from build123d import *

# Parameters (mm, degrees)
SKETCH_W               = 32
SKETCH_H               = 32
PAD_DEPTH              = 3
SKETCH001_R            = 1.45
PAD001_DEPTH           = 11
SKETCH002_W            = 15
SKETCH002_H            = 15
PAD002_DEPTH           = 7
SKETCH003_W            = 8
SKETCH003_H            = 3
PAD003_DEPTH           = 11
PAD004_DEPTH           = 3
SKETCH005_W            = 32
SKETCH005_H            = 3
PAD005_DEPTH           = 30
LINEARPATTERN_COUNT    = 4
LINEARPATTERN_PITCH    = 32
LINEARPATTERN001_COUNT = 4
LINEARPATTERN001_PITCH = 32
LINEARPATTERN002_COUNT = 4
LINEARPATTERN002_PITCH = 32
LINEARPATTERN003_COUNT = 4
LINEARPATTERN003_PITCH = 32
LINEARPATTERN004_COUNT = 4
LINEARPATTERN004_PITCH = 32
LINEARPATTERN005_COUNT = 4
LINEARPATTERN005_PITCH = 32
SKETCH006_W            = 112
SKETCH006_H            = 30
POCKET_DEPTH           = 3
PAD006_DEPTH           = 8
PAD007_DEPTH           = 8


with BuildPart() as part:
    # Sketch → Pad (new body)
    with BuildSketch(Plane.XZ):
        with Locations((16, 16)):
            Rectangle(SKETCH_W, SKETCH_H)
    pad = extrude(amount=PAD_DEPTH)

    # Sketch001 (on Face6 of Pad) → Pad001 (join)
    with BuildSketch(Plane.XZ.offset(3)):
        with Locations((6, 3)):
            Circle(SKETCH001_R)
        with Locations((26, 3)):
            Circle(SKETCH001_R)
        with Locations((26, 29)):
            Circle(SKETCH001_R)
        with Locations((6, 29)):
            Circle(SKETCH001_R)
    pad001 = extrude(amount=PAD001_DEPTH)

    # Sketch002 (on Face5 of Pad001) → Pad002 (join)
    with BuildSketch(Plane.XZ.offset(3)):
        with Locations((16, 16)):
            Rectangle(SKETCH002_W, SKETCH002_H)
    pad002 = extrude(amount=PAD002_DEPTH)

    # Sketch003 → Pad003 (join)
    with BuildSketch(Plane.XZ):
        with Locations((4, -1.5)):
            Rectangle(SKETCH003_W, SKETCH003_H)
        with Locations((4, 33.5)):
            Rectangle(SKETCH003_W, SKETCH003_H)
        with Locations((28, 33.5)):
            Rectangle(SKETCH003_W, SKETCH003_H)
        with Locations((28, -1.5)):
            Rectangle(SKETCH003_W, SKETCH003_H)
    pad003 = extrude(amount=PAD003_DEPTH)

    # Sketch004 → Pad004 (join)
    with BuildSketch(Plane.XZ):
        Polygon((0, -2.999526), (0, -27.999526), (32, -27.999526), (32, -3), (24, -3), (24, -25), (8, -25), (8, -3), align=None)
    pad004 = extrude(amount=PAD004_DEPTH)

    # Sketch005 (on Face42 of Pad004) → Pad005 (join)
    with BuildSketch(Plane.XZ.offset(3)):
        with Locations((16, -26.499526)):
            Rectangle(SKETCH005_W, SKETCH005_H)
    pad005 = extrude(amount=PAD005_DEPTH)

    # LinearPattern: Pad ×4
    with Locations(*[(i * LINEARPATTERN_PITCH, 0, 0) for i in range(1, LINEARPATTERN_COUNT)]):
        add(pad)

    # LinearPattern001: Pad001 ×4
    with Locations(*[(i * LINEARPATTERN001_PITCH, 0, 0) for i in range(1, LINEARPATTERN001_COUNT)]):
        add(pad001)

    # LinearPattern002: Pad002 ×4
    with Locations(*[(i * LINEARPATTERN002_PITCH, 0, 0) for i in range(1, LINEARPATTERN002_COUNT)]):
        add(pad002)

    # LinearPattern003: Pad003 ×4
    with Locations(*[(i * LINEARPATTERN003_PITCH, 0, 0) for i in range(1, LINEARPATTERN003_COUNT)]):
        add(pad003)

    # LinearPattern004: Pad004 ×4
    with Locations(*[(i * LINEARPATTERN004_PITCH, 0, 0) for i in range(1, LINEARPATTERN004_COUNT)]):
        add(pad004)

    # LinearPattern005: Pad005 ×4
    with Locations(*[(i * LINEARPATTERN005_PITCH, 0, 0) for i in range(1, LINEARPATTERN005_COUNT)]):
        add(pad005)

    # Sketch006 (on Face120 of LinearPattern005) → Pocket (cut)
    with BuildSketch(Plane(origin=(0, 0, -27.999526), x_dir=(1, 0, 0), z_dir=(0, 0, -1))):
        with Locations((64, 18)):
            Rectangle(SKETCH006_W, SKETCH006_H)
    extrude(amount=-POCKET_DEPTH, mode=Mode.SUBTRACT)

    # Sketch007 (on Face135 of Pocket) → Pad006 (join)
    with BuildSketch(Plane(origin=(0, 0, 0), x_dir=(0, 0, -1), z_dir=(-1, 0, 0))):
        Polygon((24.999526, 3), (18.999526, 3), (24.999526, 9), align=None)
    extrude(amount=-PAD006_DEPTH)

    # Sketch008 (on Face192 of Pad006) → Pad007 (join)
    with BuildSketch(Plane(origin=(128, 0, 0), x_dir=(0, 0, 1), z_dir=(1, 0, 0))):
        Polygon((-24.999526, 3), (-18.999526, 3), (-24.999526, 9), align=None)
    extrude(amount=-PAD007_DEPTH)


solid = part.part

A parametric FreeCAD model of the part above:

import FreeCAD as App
import Part
import Sketcher
from FreeCAD import Vector

doc = App.newDocument("Part")
params = doc.addObject("Spreadsheet::Sheet", "Params")
for row, (alias, value) in enumerate([
    ("sketch1_width", "32 mm"),
    ("pad1_length", "3 mm"),
    ("sketch2_diameter", "2.9 mm"),
    ("pad2_length", "11 mm"),
    ("sketch3_width", "15 mm"),
    ("pad3_length", "7 mm"),
    ("sketch4_width", "8 mm"),
    ("sketch4_height", "3 mm"),
    ("pad4_length", "11 mm"),
    ("sketch5_width", "32 mm"),
    ("sketch5_width2", "8 mm"),
    ("sketch5_width3", "16 mm"),
    ("sketch5_height", "25 mm"),
    ("sketch5_height2", "22 mm"),
    ("pad5_length", "3 mm"),
    ("sketch6_width", "32 mm"),
    ("sketch6_height", "3 mm"),
    ("pad6_length", "30 mm"),
    ("linearpattern_pitch", "32 mm"),
    ("linearpattern2_pitch", "32 mm"),
    ("linearpattern3_pitch", "32 mm"),
    ("linearpattern4_pitch", "32 mm"),
    ("linearpattern5_pitch", "32 mm"),
    ("linearpattern6_pitch", "32 mm"),
    ("sketch7_width", "112 mm"),
    ("sketch7_height", "30 mm"),
    ("pocket1_length", "3 mm"),
    ("sketch8_width", "6 mm"),
    ("pad7_length", "8 mm"),
    ("sketch9_width", "6 mm"),
    ("pad8_length", "8 mm"),
], start=1):
    params.set(f"A{row}", alias)
    params.set(f"B{row}", "=" + value)
    params.setAlias(f"B{row}", alias)

body = doc.addObject("PartDesign::Body", "Body")

sketch1 = doc.addObject("Sketcher::SketchObject", "Sketch")
body.addObject(sketch1)
sketch1.AttachmentSupport = (doc.XZ_Plane, [""])
sketch1.MapMode = "FlatFace"
sketch1.addGeometry(Part.LineSegment(Vector(0, 32, 0), Vector(0, 0, 0)), False)
sketch1.addGeometry(Part.LineSegment(Vector(0, 0, 0), Vector(32, 0, 0)), False)
sketch1.addGeometry(Part.LineSegment(Vector(32, 0, 0), Vector(32, 32, 0)), False)
sketch1.addGeometry(Part.LineSegment(Vector(32, 32, 0), Vector(0, 32, 0)), False)
sketch1.addConstraint(Sketcher.Constraint("Coincident", 0, 2, 1, 1))
sketch1.addConstraint(Sketcher.Constraint("Coincident", 1, 2, 2, 1))
sketch1.addConstraint(Sketcher.Constraint("Coincident", 2, 2, 3, 1))
sketch1.addConstraint(Sketcher.Constraint("Coincident", 3, 2, 0, 1))
sketch1.addConstraint(Sketcher.Constraint("Vertical", 0))
sketch1.addConstraint(Sketcher.Constraint("Horizontal", 1))
sketch1.addConstraint(Sketcher.Constraint("Vertical", 2))
sketch1.addConstraint(Sketcher.Constraint("Horizontal", 3))
sketch1.addConstraint(Sketcher.Constraint("Coincident", 0, 2, -1, 1))
sketch1.addConstraint(Sketcher.Constraint("Equal", 3, 0))
sketch1.addConstraint(Sketcher.Constraint("DistanceX", 1, 1, 1, 2, 32.0))
sketch1.setExpression("Constraints[10]", "Params.sketch1_width")
pad1 = doc.addObject("PartDesign::Pad", "Pad")
body.addObject(pad1)
pad1.Profile = sketch1
pad1.setExpression("Length", "Params.pad1_length")

sketch2 = doc.addObject("Sketcher::SketchObject", "Sketch001")
body.addObject(sketch2)
sketch2.AttachmentSupport = (doc.XZ_Plane, [""])
sketch2.MapMode = "FlatFace"
sketch2.AttachmentOffset = App.Placement(Vector(0, 0, 3), App.Rotation())
sketch2.addGeometry(Part.Circle(Vector(6, 3, 0), Vector(0, 0, 1), 1.45), False)
sketch2.addGeometry(Part.Circle(Vector(26, 3, 0), Vector(0, 0, 1), 1.45), False)
sketch2.addGeometry(Part.Circle(Vector(26, 29, 0), Vector(0, 0, 1), 1.45), False)
sketch2.addGeometry(Part.Circle(Vector(6, 29, 0), Vector(0, 0, 1), 1.45), False)
sketch2.addConstraint(Sketcher.Constraint("Equal", 0, 1))
sketch2.addConstraint(Sketcher.Constraint("Equal", 1, 2))
sketch2.addConstraint(Sketcher.Constraint("Equal", 2, 3))
sketch2.addConstraint(Sketcher.Constraint("Horizontal", 0, 3, 1, 3))
sketch2.addConstraint(Sketcher.Constraint("Horizontal", 2, 3, 3, 3))
sketch2.addConstraint(Sketcher.Constraint("Vertical", 1, 3, 2, 3))
sketch2.addConstraint(Sketcher.Constraint("Vertical", 0, 3, 3, 3))
sketch2.addConstraint(Sketcher.Constraint("Diameter", 0, 2.9))
sketch2.addConstraint(Sketcher.Constraint("DistanceX", -1, 1, 0, 3, 6.0))
sketch2.addConstraint(Sketcher.Constraint("DistanceY", -1, 1, 0, 3, 3.0))
sketch2.addConstraint(Sketcher.Constraint("DistanceX", -1, 1, 1, 3, 26.0))
sketch2.addConstraint(Sketcher.Constraint("DistanceY", -1, 1, 2, 3, 29.0))
sketch2.setExpression("Constraints[7]", "Params.sketch2_diameter")
pad2 = doc.addObject("PartDesign::Pad", "Pad001")
body.addObject(pad2)
pad2.Profile = sketch2
pad2.setExpression("Length", "Params.pad2_length")

sketch3 = doc.addObject("Sketcher::SketchObject", "Sketch002")
body.addObject(sketch3)
sketch3.AttachmentSupport = (doc.XZ_Plane, [""])
sketch3.MapMode = "FlatFace"
sketch3.AttachmentOffset = App.Placement(Vector(0, 0, 3), App.Rotation())
sketch3.addGeometry(Part.LineSegment(Vector(8.5, 23.5, 0), Vector(8.5, 8.5, 0)), False)
sketch3.addGeometry(Part.LineSegment(Vector(8.5, 8.5, 0), Vector(23.5, 8.5, 0)), False)
sketch3.addGeometry(Part.LineSegment(Vector(23.5, 8.5, 0), Vector(23.5, 23.5, 0)), False)
sketch3.addGeometry(Part.LineSegment(Vector(23.5, 23.5, 0), Vector(8.5, 23.5, 0)), False)
sketch3.addConstraint(Sketcher.Constraint("Coincident", 0, 2, 1, 1))
sketch3.addConstraint(Sketcher.Constraint("Coincident", 1, 2, 2, 1))
sketch3.addConstraint(Sketcher.Constraint("Coincident", 2, 2, 3, 1))
sketch3.addConstraint(Sketcher.Constraint("Coincident", 3, 2, 0, 1))
sketch3.addConstraint(Sketcher.Constraint("Vertical", 0))
sketch3.addConstraint(Sketcher.Constraint("Horizontal", 1))
sketch3.addConstraint(Sketcher.Constraint("Vertical", 2))
sketch3.addConstraint(Sketcher.Constraint("Horizontal", 3))
sketch3.addConstraint(Sketcher.Constraint("Equal", 3, 0))
sketch3.addConstraint(Sketcher.Constraint("DistanceX", 1, 1, 1, 2, 15.0))
sketch3.addConstraint(Sketcher.Constraint("DistanceX", -1, 1, 0, 2, 8.5))
sketch3.addConstraint(Sketcher.Constraint("DistanceY", -1, 1, 0, 2, 8.5))
sketch3.setExpression("Constraints[9]", "Params.sketch3_width")
pad3 = doc.addObject("PartDesign::Pad", "Pad002")
body.addObject(pad3)
pad3.Profile = sketch3
pad3.setExpression("Length", "Params.pad3_length")

sketch4 = doc.addObject("Sketcher::SketchObject", "Sketch003")
body.addObject(sketch4)
sketch4.AttachmentSupport = (doc.XZ_Plane, [""])
sketch4.MapMode = "FlatFace"
sketch4.addGeometry(Part.LineSegment(Vector(0, 0, 0), Vector(0, -3, 0)), False)
sketch4.addGeometry(Part.LineSegment(Vector(0, -3, 0), Vector(8, -3, 0)), False)
sketch4.addGeometry(Part.LineSegment(Vector(8, -3, 0), Vector(8, 0, 0)), False)
sketch4.addGeometry(Part.LineSegment(Vector(8, 0, 0), Vector(0, 0, 0)), False)
sketch4.addGeometry(Part.LineSegment(Vector(0, 35, 0), Vector(0, 32, 0)), False)
sketch4.addGeometry(Part.LineSegment(Vector(0, 32, 0), Vector(8, 32, 0)), False)
sketch4.addGeometry(Part.LineSegment(Vector(8, 32, 0), Vector(8, 35, 0)), False)
sketch4.addGeometry(Part.LineSegment(Vector(8, 35, 0), Vector(0, 35, 0)), False)
sketch4.addGeometry(Part.LineSegment(Vector(24, 35, 0), Vector(24, 32, 0)), False)
sketch4.addGeometry(Part.LineSegment(Vector(24, 32, 0), Vector(32, 32, 0)), False)
sketch4.addGeometry(Part.LineSegment(Vector(32, 32, 0), Vector(32, 35, 0)), False)
sketch4.addGeometry(Part.LineSegment(Vector(32, 35, 0), Vector(24, 35, 0)), False)
sketch4.addGeometry(Part.LineSegment(Vector(24, 0, 0), Vector(24, -3, 0)), False)
sketch4.addGeometry(Part.LineSegment(Vector(24, -3, 0), Vector(32, -3, 0)), False)
sketch4.addGeometry(Part.LineSegment(Vector(32, -3, 0), Vector(32, 0, 0)), False)
sketch4.addGeometry(Part.LineSegment(Vector(32, 0, 0), Vector(24, 0, 0)), False)
sketch4.addConstraint(Sketcher.Constraint("Coincident", 0, 2, 1, 1))
sketch4.addConstraint(Sketcher.Constraint("Coincident", 1, 2, 2, 1))
sketch4.addConstraint(Sketcher.Constraint("Coincident", 2, 2, 3, 1))
sketch4.addConstraint(Sketcher.Constraint("Coincident", 3, 2, 0, 1))
sketch4.addConstraint(Sketcher.Constraint("Coincident", 4, 2, 5, 1))
sketch4.addConstraint(Sketcher.Constraint("Coincident", 5, 2, 6, 1))
sketch4.addConstraint(Sketcher.Constraint("Coincident", 6, 2, 7, 1))
sketch4.addConstraint(Sketcher.Constraint("Coincident", 7, 2, 4, 1))
sketch4.addConstraint(Sketcher.Constraint("Coincident", 8, 2, 9, 1))
sketch4.addConstraint(Sketcher.Constraint("Coincident", 9, 2, 10, 1))
sketch4.addConstraint(Sketcher.Constraint("Coincident", 10, 2, 11, 1))
sketch4.addConstraint(Sketcher.Constraint("Coincident", 11, 2, 8, 1))
sketch4.addConstraint(Sketcher.Constraint("Coincident", 12, 2, 13, 1))
sketch4.addConstraint(Sketcher.Constraint("Coincident", 13, 2, 14, 1))
sketch4.addConstraint(Sketcher.Constraint("Coincident", 14, 2, 15, 1))
sketch4.addConstraint(Sketcher.Constraint("Coincident", 15, 2, 12, 1))
sketch4.addConstraint(Sketcher.Constraint("Vertical", 0))
sketch4.addConstraint(Sketcher.Constraint("Horizontal", 1))
sketch4.addConstraint(Sketcher.Constraint("Vertical", 2))
sketch4.addConstraint(Sketcher.Constraint("Horizontal", 3))
sketch4.addConstraint(Sketcher.Constraint("Vertical", 4))
sketch4.addConstraint(Sketcher.Constraint("Horizontal", 5))
sketch4.addConstraint(Sketcher.Constraint("Vertical", 6))
sketch4.addConstraint(Sketcher.Constraint("Horizontal", 7))
sketch4.addConstraint(Sketcher.Constraint("Vertical", 8))
sketch4.addConstraint(Sketcher.Constraint("Horizontal", 9))
sketch4.addConstraint(Sketcher.Constraint("Vertical", 10))
sketch4.addConstraint(Sketcher.Constraint("Horizontal", 11))
sketch4.addConstraint(Sketcher.Constraint("Vertical", 12))
sketch4.addConstraint(Sketcher.Constraint("Horizontal", 13))
sketch4.addConstraint(Sketcher.Constraint("Vertical", 14))
sketch4.addConstraint(Sketcher.Constraint("Horizontal", 15))
sketch4.addConstraint(Sketcher.Constraint("Coincident", 3, 2, -1, 1))
sketch4.addConstraint(Sketcher.Constraint("PointOnObject", 4, 2, -2))
sketch4.addConstraint(Sketcher.Constraint("PointOnObject", 14, 2, -1))
sketch4.addConstraint(Sketcher.Constraint("Horizontal", 5, 2, 8, 2))
sketch4.addConstraint(Sketcher.Constraint("Horizontal", 7, 2, 10, 2))
sketch4.addConstraint(Sketcher.Constraint("Horizontal", 1, 2, 12, 2))
sketch4.addConstraint(Sketcher.Constraint("Vertical", 2, 2, 5, 2))
sketch4.addConstraint(Sketcher.Constraint("Vertical", 11, 2, 12, 2))
sketch4.addConstraint(Sketcher.Constraint("Vertical", 10, 2, 13, 2))
sketch4.addConstraint(Sketcher.Constraint("Equal", 7, 9))
sketch4.addConstraint(Sketcher.Constraint("Equal", 2, 4))
sketch4.addConstraint(Sketcher.Constraint("DistanceX", 1, 1, 1, 2, 8.0))
sketch4.addConstraint(Sketcher.Constraint("DistanceY", 0, 2, 0, 1, 3.0))
sketch4.addConstraint(Sketcher.Constraint("DistanceY", -1, 1, 4, 2, 32.0))
sketch4.addConstraint(Sketcher.Constraint("DistanceX", -1, 1, 8, 2, 24.0))
sketch4.setExpression("Constraints[43]", "Params.sketch4_width")
sketch4.setExpression("Constraints[44]", "Params.sketch4_height")
pad4 = doc.addObject("PartDesign::Pad", "Pad003")
body.addObject(pad4)
pad4.Profile = sketch4
pad4.setExpression("Length", "Params.pad4_length")

sketch5 = doc.addObject("Sketcher::SketchObject", "Sketch004")
body.addObject(sketch5)
sketch5.AttachmentSupport = (doc.XZ_Plane, [""])
sketch5.MapMode = "FlatFace"
sketch5.addGeometry(Part.LineSegment(Vector(0, -2.999526, 0), Vector(0, -27.999526, 0)), False)
sketch5.addGeometry(Part.LineSegment(Vector(0, -27.999526, 0), Vector(32, -27.999526, 0)), False)
sketch5.addGeometry(Part.LineSegment(Vector(32, -27.999526, 0), Vector(32, -3, 0)), False)
sketch5.addGeometry(Part.LineSegment(Vector(32, -3, 0), Vector(24, -3, 0)), False)
sketch5.addGeometry(Part.LineSegment(Vector(24, -3, 0), Vector(24, -25, 0)), False)
sketch5.addGeometry(Part.LineSegment(Vector(24, -25, 0), Vector(8, -25, 0)), False)
sketch5.addGeometry(Part.LineSegment(Vector(8, -25, 0), Vector(8, -3, 0)), False)
sketch5.addGeometry(Part.LineSegment(Vector(8, -3, 0), Vector(0, -2.999526, 0)), False)
sketch5.addConstraint(Sketcher.Constraint("Coincident", 0, 2, 1, 1))
sketch5.addConstraint(Sketcher.Constraint("Coincident", 1, 2, 2, 1))
sketch5.addConstraint(Sketcher.Constraint("Coincident", 2, 2, 3, 1))
sketch5.addConstraint(Sketcher.Constraint("Coincident", 3, 2, 4, 1))
sketch5.addConstraint(Sketcher.Constraint("Coincident", 4, 2, 5, 1))
sketch5.addConstraint(Sketcher.Constraint("Coincident", 5, 2, 6, 1))
sketch5.addConstraint(Sketcher.Constraint("Coincident", 6, 2, 7, 1))
sketch5.addConstraint(Sketcher.Constraint("Coincident", 7, 2, 0, 1))
sketch5.addConstraint(Sketcher.Constraint("Vertical", 0))
sketch5.addConstraint(Sketcher.Constraint("Horizontal", 1))
sketch5.addConstraint(Sketcher.Constraint("Vertical", 2))
sketch5.addConstraint(Sketcher.Constraint("Horizontal", 3))
sketch5.addConstraint(Sketcher.Constraint("Vertical", 4))
sketch5.addConstraint(Sketcher.Constraint("Horizontal", 5))
sketch5.addConstraint(Sketcher.Constraint("Vertical", 6))
sketch5.addConstraint(Sketcher.Constraint("PointOnObject", 0, 2, -2))
sketch5.addConstraint(Sketcher.Constraint("Horizontal", 3, 2, 6, 2))
sketch5.addConstraint(Sketcher.Constraint("DistanceX", 1, 1, 1, 2, 32.0))
sketch5.addConstraint(Sketcher.Constraint("DistanceX", 3, 2, 3, 1, 8.0))
sketch5.addConstraint(Sketcher.Constraint("DistanceX", 5, 2, 5, 1, 16.0))
sketch5.addConstraint(Sketcher.Constraint("DistanceY", 0, 2, 0, 1, 25.0))
sketch5.addConstraint(Sketcher.Constraint("DistanceY", 4, 2, 4, 1, 22.0))
sketch5.addConstraint(Sketcher.Constraint("DistanceY", 2, 2, -1, 1, 3.0))
sketch5.addConstraint(Sketcher.Constraint("DistanceY", 2, 1, 2, 2, 24.999526))
sketch5.setExpression("Constraints[17]", "Params.sketch5_width")
sketch5.setExpression("Constraints[18]", "Params.sketch5_width2")
sketch5.setExpression("Constraints[19]", "Params.sketch5_width3")
sketch5.setExpression("Constraints[20]", "Params.sketch5_height")
sketch5.setExpression("Constraints[21]", "Params.sketch5_height2")
pad5 = doc.addObject("PartDesign::Pad", "Pad004")
body.addObject(pad5)
pad5.Profile = sketch5
pad5.setExpression("Length", "Params.pad5_length")

sketch6 = doc.addObject("Sketcher::SketchObject", "Sketch005")
body.addObject(sketch6)
sketch6.AttachmentSupport = (doc.XZ_Plane, [""])
sketch6.MapMode = "FlatFace"
sketch6.AttachmentOffset = App.Placement(Vector(0, 0, 3), App.Rotation())
sketch6.addGeometry(Part.LineSegment(Vector(0, -24.999526, 0), Vector(0, -27.999526, 0)), False)
sketch6.addGeometry(Part.LineSegment(Vector(0, -27.999526, 0), Vector(32, -27.999526, 0)), False)
sketch6.addGeometry(Part.LineSegment(Vector(32, -27.999526, 0), Vector(32, -24.999526, 0)), False)
sketch6.addGeometry(Part.LineSegment(Vector(32, -24.999526, 0), Vector(0, -24.999526, 0)), False)
sketch6.addConstraint(Sketcher.Constraint("Coincident", 0, 2, 1, 1))
sketch6.addConstraint(Sketcher.Constraint("Coincident", 1, 2, 2, 1))
sketch6.addConstraint(Sketcher.Constraint("Coincident", 2, 2, 3, 1))
sketch6.addConstraint(Sketcher.Constraint("Coincident", 3, 2, 0, 1))
sketch6.addConstraint(Sketcher.Constraint("Vertical", 0))
sketch6.addConstraint(Sketcher.Constraint("Horizontal", 1))
sketch6.addConstraint(Sketcher.Constraint("Vertical", 2))
sketch6.addConstraint(Sketcher.Constraint("Horizontal", 3))
sketch6.addConstraint(Sketcher.Constraint("PointOnObject", 0, 2, -2))
sketch6.addConstraint(Sketcher.Constraint("DistanceX", 1, 1, 1, 2, 32.0))
sketch6.addConstraint(Sketcher.Constraint("DistanceY", 0, 2, 0, 1, 3.0))
sketch6.addConstraint(Sketcher.Constraint("DistanceY", 0, 2, -1, 1, 27.999526))
sketch6.setExpression("Constraints[9]", "Params.sketch6_width")
sketch6.setExpression("Constraints[10]", "Params.sketch6_height")
pad6 = doc.addObject("PartDesign::Pad", "Pad005")
body.addObject(pad6)
pad6.Profile = sketch6
pad6.setExpression("Length", "Params.pad6_length")
doc.recompute()

linearpattern = doc.addObject("PartDesign::LinearPattern", "LinearPattern")
body.addObject(linearpattern)
linearpattern.Originals = [pad1]
linearpattern.Direction = (doc.X_Axis, [""])
linearpattern.Mode = "offset"
linearpattern.setExpression("Offset", "Params.linearpattern_pitch")
linearpattern.Occurrences = 4
body.Tip = linearpattern
doc.recompute()

linearpattern2 = doc.addObject("PartDesign::LinearPattern", "LinearPattern001")
body.addObject(linearpattern2)
linearpattern2.Originals = [pad2]
linearpattern2.Direction = (doc.X_Axis, [""])
linearpattern2.Mode = "offset"
linearpattern2.setExpression("Offset", "Params.linearpattern2_pitch")
linearpattern2.Occurrences = 4
body.Tip = linearpattern2
doc.recompute()

linearpattern3 = doc.addObject("PartDesign::LinearPattern", "LinearPattern002")
body.addObject(linearpattern3)
linearpattern3.Originals = [pad3]
linearpattern3.Direction = (doc.X_Axis, [""])
linearpattern3.Mode = "offset"
linearpattern3.setExpression("Offset", "Params.linearpattern3_pitch")
linearpattern3.Occurrences = 4
body.Tip = linearpattern3
doc.recompute()

linearpattern4 = doc.addObject("PartDesign::LinearPattern", "LinearPattern003")
body.addObject(linearpattern4)
linearpattern4.Originals = [pad4]
linearpattern4.Direction = (doc.X_Axis, [""])
linearpattern4.Mode = "offset"
linearpattern4.setExpression("Offset", "Params.linearpattern4_pitch")
linearpattern4.Occurrences = 4
body.Tip = linearpattern4
doc.recompute()

linearpattern5 = doc.addObject("PartDesign::LinearPattern", "LinearPattern004")
body.addObject(linearpattern5)
linearpattern5.Originals = [pad5]
linearpattern5.Direction = (doc.X_Axis, [""])
linearpattern5.Mode = "offset"
linearpattern5.setExpression("Offset", "Params.linearpattern5_pitch")
linearpattern5.Occurrences = 4
body.Tip = linearpattern5
doc.recompute()

linearpattern6 = doc.addObject("PartDesign::LinearPattern", "LinearPattern005")
body.addObject(linearpattern6)
linearpattern6.Originals = [pad6]
linearpattern6.Direction = (doc.X_Axis, [""])
linearpattern6.Mode = "offset"
linearpattern6.setExpression("Offset", "Params.linearpattern6_pitch")
linearpattern6.Occurrences = 4
body.Tip = linearpattern6

sketch7 = doc.addObject("Sketcher::SketchObject", "Sketch006")
body.addObject(sketch7)
sketch7.AttachmentSupport = (doc.XY_Plane, [""])
sketch7.MapMode = "FlatFace"
sketch7.AttachmentOffset = App.Placement(Vector(0, 0, -27.999526), App.Rotation())
sketch7.addGeometry(Part.LineSegment(Vector(8, -33, 0), Vector(8, -3, 0)), False)
sketch7.addGeometry(Part.LineSegment(Vector(8, -3, 0), Vector(120, -3, 0)), False)
sketch7.addGeometry(Part.LineSegment(Vector(120, -3, 0), Vector(120, -33, 0)), False)
sketch7.addGeometry(Part.LineSegment(Vector(120, -33, 0), Vector(8, -33, 0)), False)
sketch7.addConstraint(Sketcher.Constraint("Coincident", 0, 2, 1, 1))
sketch7.addConstraint(Sketcher.Constraint("Coincident", 1, 2, 2, 1))
sketch7.addConstraint(Sketcher.Constraint("Coincident", 2, 2, 3, 1))
sketch7.addConstraint(Sketcher.Constraint("Coincident", 3, 2, 0, 1))
sketch7.addConstraint(Sketcher.Constraint("Vertical", 0))
sketch7.addConstraint(Sketcher.Constraint("Horizontal", 1))
sketch7.addConstraint(Sketcher.Constraint("Vertical", 2))
sketch7.addConstraint(Sketcher.Constraint("Horizontal", 3))
sketch7.addConstraint(Sketcher.Constraint("DistanceX", 1, 1, 1, 2, 112.0))
sketch7.addConstraint(Sketcher.Constraint("DistanceY", 0, 1, 0, 2, 30.0))
sketch7.addConstraint(Sketcher.Constraint("DistanceX", -1, 1, 0, 2, 8.0))
sketch7.addConstraint(Sketcher.Constraint("DistanceY", 0, 2, -1, 1, 3.0))
sketch7.setExpression("Constraints[8]", "Params.sketch7_width")
sketch7.setExpression("Constraints[9]", "Params.sketch7_height")
pocket1 = doc.addObject("PartDesign::Pocket", "Pocket")
body.addObject(pocket1)
pocket1.Profile = sketch7
pocket1.setExpression("Length", "Params.pocket1_length")
pocket1.Reversed = True

sketch8 = doc.addObject("Sketcher::SketchObject", "Sketch007")
body.addObject(sketch8)
sketch8.AttachmentSupport = (doc.YZ_Plane, [""])
sketch8.MapMode = "FlatFace"
sketch8.addGeometry(Part.LineSegment(Vector(-3, -18.999526, 0), Vector(-3, -24.999526, 0)), False)
sketch8.addGeometry(Part.LineSegment(Vector(-3, -24.999526, 0), Vector(-9, -24.999526, 0)), False)
sketch8.addGeometry(Part.LineSegment(Vector(-9, -24.999526, 0), Vector(-3, -18.999526, 0)), False)
sketch8.addConstraint(Sketcher.Constraint("Coincident", 0, 2, 1, 1))
sketch8.addConstraint(Sketcher.Constraint("Coincident", 1, 2, 2, 1))
sketch8.addConstraint(Sketcher.Constraint("Coincident", 2, 2, 0, 1))
sketch8.addConstraint(Sketcher.Constraint("Vertical", 0))
sketch8.addConstraint(Sketcher.Constraint("Horizontal", 1))
sketch8.addConstraint(Sketcher.Constraint("Equal", 1, 0))
sketch8.addConstraint(Sketcher.Constraint("DistanceX", 1, 2, 1, 1, 6.0))
sketch8.addConstraint(Sketcher.Constraint("DistanceX", 0, 2, -1, 1, 3.0))
sketch8.addConstraint(Sketcher.Constraint("DistanceY", 0, 2, -1, 1, 24.999526))
sketch8.setExpression("Constraints[6]", "Params.sketch8_width")
pad7 = doc.addObject("PartDesign::Pad", "Pad006")
body.addObject(pad7)
pad7.Profile = sketch8
pad7.setExpression("Length", "Params.pad7_length")

sketch9 = doc.addObject("Sketcher::SketchObject", "Sketch008")
body.addObject(sketch9)
sketch9.AttachmentSupport = (doc.YZ_Plane, [""])
sketch9.MapMode = "FlatFace"
sketch9.AttachmentOffset = App.Placement(Vector(0, 0, 128), App.Rotation())
sketch9.addGeometry(Part.LineSegment(Vector(-3, -24.999526, 0), Vector(-3, -18.999526, 0)), False)
sketch9.addGeometry(Part.LineSegment(Vector(-3, -18.999526, 0), Vector(-9, -24.999526, 0)), False)
sketch9.addGeometry(Part.LineSegment(Vector(-9, -24.999526, 0), Vector(-3, -24.999526, 0)), False)
sketch9.addConstraint(Sketcher.Constraint("Coincident", 0, 2, 1, 1))
sketch9.addConstraint(Sketcher.Constraint("Coincident", 1, 2, 2, 1))
sketch9.addConstraint(Sketcher.Constraint("Coincident", 2, 2, 0, 1))
sketch9.addConstraint(Sketcher.Constraint("Vertical", 0))
sketch9.addConstraint(Sketcher.Constraint("Horizontal", 2))
sketch9.addConstraint(Sketcher.Constraint("Equal", 2, 0))
sketch9.addConstraint(Sketcher.Constraint("DistanceX", 2, 1, 2, 2, 6.0))
sketch9.addConstraint(Sketcher.Constraint("DistanceX", 0, 2, -1, 1, 3.0))
sketch9.addConstraint(Sketcher.Constraint("DistanceY", 0, 2, -1, 1, 18.999526))
sketch9.setExpression("Constraints[6]", "Params.sketch9_width")
pad8 = doc.addObject("PartDesign::Pad", "Pad007")
body.addObject(pad8)
pad8.Profile = sketch9
pad8.setExpression("Length", "Params.pad8_length")
pad8.Reversed = True

doc.recompute()
